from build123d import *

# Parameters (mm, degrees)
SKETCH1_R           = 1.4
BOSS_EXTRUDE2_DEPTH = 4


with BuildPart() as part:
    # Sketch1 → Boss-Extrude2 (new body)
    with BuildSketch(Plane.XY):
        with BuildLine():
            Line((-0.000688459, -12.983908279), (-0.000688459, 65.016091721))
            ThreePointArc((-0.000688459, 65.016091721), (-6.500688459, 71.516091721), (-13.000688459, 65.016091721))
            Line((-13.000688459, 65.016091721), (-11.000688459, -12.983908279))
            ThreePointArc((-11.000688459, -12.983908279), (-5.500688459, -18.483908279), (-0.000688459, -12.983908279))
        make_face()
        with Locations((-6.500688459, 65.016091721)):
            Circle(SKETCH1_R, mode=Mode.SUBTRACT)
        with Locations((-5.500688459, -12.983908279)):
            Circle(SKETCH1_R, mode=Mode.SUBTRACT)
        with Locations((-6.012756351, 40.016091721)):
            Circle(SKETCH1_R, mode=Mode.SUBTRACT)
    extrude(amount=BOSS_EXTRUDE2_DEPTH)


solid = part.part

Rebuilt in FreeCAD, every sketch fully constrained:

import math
import FreeCAD as App
import Part
import Sketcher
from FreeCAD import Vector

doc = App.newDocument("Part")
body = doc.addObject("PartDesign::Body", "Body")

# Sketch on XY plane
sketch1 = body.newObject("Sketcher::SketchObject", "Sketch")
sketch1.AttachmentSupport = (doc.getObject("XY_Plane"), [""])
sketch1.MapMode = "FlatFace"
sketch1.addGeometry([
    Part.LineSegment(Vector(0, -13, 0), Vector(0, 65, 0)),  # 0
    Part.ArcOfCircle(Part.Circle(Vector(-6.5, 65, 0), Vector(0, 0, 1), 6.5), math.radians(0), math.radians(180)),  # 1
    Part.LineSegment(Vector(-13, 65, 0), Vector(-11, -13, 0)),  # 2
    Part.ArcOfCircle(Part.Circle(Vector(-5.5, -13, 0), Vector(0, 0, 1), 5.5), math.radians(180), math.radians(360)),  # 3
    Part.Circle(Vector(-5.5, -13, 0), Vector(0, 0, 1), 1.4),  # 4
    Part.Circle(Vector(-6, 40, 0), Vector(0, 0, 1), 1.4),  # 5
    Part.Circle(Vector(-6.5, 65, 0), Vector(0, 0, 1), 1.4),  # 6
], False)
sketch1.addConstraint([
    Sketcher.Constraint("Tangent", 0, 2, 1, 1),
    Sketcher.Constraint("Coincident", 1, 2, 2, 1),
    Sketcher.Constraint("Coincident", 2, 2, 3, 1),
    Sketcher.Constraint("Tangent", 3, 2, 0, 1),
    Sketcher.Constraint("Vertical", 0),
    Sketcher.Constraint("Coincident", 4, 3, 3, 3),
    Sketcher.Constraint("Coincident", 6, 3, 1, 3),
    Sketcher.Constraint("Equal", 4, 5),
    Sketcher.Constraint("Equal", 5, 6),
    Sketcher.Constraint("Horizontal", 0, 2, 1, 2),
    Sketcher.Constraint("Horizontal", 4, 3, 2, 2),
    Sketcher.Constraint("Diameter", 4, 2.8),
    Sketcher.Constraint("Radius", 1, 6.5),
    Sketcher.Constraint("Radius", 3, 5.5),
    Sketcher.Constraint("DistanceY", 0, 1, 0, 2, 78.0),
    Sketcher.Constraint("DistanceY", 5, 3, 1, 3, 25.0),
    Sketcher.Constraint("DistanceX", 1, 3, -1, 1, 6.500688),
    Sketcher.Constraint("DistanceY", -1, 1, 1, 3, 65.016092),
    Sketcher.Constraint("DistanceX", 5, 3, -1, 1, 6.012756),
])
pad1 = body.newObject("PartDesign::Pad", "Pad")
pad1.Profile = sketch1
pad1.Length = 4

doc.recompute()
